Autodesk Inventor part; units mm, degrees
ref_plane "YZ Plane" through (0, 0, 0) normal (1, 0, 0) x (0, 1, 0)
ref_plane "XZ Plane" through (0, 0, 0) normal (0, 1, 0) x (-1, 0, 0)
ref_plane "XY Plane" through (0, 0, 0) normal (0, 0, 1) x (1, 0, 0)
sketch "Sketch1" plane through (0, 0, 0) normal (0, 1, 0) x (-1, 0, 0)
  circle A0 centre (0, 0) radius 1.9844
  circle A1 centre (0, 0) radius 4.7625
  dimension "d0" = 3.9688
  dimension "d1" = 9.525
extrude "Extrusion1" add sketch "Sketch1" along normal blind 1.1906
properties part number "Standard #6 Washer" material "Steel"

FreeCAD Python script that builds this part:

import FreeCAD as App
import Part
import Sketcher

V = App.Vector
Q = App.Units.Quantity

doc = App.newDocument("Part")
body = doc.addObject("PartDesign::Body", "Body")

sketch1 = body.newObject("Sketcher::SketchObject", "Sketch")
sketch1.AttachmentSupport = (doc.getObject("XZ_Plane"), [""])
sketch1.MapMode = "FlatFace"
sketch1.addGeometry([
    Part.Circle(V(0, 0, 0), V(0, 0, 1), 4.8),
    Part.Circle(V(0, 0, 0), V(0, 0, 1), 2),
], False)
sketch1.addConstraint([
    Sketcher.Constraint("Coincident", 0, 3, -1, 1),
    Sketcher.Constraint("Coincident", 1, 3, -1, 1),
    Sketcher.Constraint("Diameter", 0, Q("0.375 in")),
    Sketcher.Constraint("Diameter", 1, Q("0.156252 in")),
])
pad1 = body.newObject("PartDesign::Pad", "Pad")
pad1.Profile = sketch1
pad1.Length = Q("0.046874 in")
pad1.Reversed = True

doc.recompute()
